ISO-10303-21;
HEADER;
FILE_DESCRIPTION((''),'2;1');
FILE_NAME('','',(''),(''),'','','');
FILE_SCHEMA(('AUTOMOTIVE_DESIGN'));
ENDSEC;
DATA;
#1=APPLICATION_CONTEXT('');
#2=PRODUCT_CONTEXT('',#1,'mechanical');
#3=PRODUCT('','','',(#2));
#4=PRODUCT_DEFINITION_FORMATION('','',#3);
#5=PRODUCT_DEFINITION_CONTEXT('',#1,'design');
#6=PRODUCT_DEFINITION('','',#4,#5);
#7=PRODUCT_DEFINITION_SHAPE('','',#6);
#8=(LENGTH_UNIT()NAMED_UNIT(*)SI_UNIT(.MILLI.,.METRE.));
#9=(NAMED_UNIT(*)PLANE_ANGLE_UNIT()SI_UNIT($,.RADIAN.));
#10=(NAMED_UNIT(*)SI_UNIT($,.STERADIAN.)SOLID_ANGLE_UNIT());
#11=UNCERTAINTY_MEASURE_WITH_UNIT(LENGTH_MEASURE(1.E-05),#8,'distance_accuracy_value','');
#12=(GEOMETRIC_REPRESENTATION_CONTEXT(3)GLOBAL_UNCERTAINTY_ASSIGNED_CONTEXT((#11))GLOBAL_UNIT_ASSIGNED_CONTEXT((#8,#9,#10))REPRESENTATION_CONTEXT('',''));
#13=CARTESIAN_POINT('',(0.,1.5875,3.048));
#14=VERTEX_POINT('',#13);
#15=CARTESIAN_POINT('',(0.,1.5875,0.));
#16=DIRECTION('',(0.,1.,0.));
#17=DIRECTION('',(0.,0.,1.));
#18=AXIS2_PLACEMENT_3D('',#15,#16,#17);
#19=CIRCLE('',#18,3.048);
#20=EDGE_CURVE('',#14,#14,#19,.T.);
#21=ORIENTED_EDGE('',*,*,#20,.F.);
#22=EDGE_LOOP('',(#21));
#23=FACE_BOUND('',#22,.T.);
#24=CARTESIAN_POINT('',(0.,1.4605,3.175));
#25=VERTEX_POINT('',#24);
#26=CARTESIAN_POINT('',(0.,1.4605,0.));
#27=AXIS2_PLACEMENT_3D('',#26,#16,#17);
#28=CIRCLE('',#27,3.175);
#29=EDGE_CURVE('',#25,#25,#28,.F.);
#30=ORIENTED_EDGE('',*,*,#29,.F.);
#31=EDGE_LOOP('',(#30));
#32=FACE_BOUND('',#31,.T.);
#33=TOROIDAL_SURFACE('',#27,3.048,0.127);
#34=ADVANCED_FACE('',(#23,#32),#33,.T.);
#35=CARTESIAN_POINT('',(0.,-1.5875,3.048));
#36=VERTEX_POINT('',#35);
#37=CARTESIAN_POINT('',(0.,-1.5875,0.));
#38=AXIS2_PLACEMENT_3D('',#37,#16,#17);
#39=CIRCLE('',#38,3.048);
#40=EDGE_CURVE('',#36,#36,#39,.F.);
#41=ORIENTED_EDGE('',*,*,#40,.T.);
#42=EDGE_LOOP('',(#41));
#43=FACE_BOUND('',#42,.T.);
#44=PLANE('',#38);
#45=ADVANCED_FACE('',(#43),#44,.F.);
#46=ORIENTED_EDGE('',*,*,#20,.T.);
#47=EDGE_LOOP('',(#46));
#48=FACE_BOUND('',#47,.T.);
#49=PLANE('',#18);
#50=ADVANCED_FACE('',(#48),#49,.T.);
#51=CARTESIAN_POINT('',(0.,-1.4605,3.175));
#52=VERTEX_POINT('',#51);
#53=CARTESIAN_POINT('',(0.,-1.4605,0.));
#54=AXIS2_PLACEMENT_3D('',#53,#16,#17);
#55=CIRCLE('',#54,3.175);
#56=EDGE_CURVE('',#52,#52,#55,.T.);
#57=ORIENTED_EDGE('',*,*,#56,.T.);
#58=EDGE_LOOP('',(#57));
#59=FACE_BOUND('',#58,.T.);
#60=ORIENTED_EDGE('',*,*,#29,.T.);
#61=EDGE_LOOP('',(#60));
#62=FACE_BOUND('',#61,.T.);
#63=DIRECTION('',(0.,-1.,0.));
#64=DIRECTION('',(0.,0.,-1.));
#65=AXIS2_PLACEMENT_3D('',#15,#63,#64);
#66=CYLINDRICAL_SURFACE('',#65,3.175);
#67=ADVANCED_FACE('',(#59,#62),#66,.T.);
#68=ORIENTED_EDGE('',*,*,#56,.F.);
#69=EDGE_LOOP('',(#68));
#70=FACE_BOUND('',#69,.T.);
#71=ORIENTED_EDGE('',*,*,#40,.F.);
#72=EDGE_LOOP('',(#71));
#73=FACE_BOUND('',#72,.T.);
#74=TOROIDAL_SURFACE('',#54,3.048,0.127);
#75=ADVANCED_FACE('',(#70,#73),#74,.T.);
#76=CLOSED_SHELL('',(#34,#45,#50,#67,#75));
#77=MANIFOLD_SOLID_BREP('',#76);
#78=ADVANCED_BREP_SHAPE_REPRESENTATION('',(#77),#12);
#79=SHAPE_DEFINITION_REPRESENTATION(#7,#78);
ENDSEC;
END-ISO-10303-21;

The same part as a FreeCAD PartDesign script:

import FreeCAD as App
import Part
import Sketcher
Q = App.Units.Quantity


def edges_at(feature, points):
    """Names of the edges that pass closest to the given points."""
    edges = feature.Shape.Edges
    near = lambda p: min(range(len(edges)), key=lambda i: edges[i].distToShape(Part.Vertex(*p))[0])
    return sorted({f"Edge{near(p) + 1}" for p in points})

doc = App.newDocument("Part")
body = doc.addObject("PartDesign::Body", "Body")

# Sketch on XZ plane
sketch1 = body.newObject("Sketcher::SketchObject", "Sketch")
sketch1.AttachmentSupport = (doc.getObject("XZ_Plane"), [""])
sketch1.MapMode = "FlatFace"
sketch1.addGeometry(Part.Circle(App.Vector(0, 0, 0), App.Vector(0, 0, 1), 3.175), False)
sketch1.addConstraint(Sketcher.Constraint("Coincident", 0, 3, -1, 1))
sketch1.addConstraint(Sketcher.Constraint("Diameter", 0, Q("0.25 in")))
pad1 = body.newObject("PartDesign::Pad", "Pad")
pad1.Profile = sketch1
pad1.Length = Q("0.125 in")
pad1.Midplane = True
doc.recompute()

fillet = body.newObject("PartDesign::Fillet", "Fillet")
fillet.Base = (pad1, edges_at(pad1, [(0, -1.587, -3.175), (0, 1.587, -3.175)]))
fillet.Radius = Q("0.005 in")

doc.recompute()
